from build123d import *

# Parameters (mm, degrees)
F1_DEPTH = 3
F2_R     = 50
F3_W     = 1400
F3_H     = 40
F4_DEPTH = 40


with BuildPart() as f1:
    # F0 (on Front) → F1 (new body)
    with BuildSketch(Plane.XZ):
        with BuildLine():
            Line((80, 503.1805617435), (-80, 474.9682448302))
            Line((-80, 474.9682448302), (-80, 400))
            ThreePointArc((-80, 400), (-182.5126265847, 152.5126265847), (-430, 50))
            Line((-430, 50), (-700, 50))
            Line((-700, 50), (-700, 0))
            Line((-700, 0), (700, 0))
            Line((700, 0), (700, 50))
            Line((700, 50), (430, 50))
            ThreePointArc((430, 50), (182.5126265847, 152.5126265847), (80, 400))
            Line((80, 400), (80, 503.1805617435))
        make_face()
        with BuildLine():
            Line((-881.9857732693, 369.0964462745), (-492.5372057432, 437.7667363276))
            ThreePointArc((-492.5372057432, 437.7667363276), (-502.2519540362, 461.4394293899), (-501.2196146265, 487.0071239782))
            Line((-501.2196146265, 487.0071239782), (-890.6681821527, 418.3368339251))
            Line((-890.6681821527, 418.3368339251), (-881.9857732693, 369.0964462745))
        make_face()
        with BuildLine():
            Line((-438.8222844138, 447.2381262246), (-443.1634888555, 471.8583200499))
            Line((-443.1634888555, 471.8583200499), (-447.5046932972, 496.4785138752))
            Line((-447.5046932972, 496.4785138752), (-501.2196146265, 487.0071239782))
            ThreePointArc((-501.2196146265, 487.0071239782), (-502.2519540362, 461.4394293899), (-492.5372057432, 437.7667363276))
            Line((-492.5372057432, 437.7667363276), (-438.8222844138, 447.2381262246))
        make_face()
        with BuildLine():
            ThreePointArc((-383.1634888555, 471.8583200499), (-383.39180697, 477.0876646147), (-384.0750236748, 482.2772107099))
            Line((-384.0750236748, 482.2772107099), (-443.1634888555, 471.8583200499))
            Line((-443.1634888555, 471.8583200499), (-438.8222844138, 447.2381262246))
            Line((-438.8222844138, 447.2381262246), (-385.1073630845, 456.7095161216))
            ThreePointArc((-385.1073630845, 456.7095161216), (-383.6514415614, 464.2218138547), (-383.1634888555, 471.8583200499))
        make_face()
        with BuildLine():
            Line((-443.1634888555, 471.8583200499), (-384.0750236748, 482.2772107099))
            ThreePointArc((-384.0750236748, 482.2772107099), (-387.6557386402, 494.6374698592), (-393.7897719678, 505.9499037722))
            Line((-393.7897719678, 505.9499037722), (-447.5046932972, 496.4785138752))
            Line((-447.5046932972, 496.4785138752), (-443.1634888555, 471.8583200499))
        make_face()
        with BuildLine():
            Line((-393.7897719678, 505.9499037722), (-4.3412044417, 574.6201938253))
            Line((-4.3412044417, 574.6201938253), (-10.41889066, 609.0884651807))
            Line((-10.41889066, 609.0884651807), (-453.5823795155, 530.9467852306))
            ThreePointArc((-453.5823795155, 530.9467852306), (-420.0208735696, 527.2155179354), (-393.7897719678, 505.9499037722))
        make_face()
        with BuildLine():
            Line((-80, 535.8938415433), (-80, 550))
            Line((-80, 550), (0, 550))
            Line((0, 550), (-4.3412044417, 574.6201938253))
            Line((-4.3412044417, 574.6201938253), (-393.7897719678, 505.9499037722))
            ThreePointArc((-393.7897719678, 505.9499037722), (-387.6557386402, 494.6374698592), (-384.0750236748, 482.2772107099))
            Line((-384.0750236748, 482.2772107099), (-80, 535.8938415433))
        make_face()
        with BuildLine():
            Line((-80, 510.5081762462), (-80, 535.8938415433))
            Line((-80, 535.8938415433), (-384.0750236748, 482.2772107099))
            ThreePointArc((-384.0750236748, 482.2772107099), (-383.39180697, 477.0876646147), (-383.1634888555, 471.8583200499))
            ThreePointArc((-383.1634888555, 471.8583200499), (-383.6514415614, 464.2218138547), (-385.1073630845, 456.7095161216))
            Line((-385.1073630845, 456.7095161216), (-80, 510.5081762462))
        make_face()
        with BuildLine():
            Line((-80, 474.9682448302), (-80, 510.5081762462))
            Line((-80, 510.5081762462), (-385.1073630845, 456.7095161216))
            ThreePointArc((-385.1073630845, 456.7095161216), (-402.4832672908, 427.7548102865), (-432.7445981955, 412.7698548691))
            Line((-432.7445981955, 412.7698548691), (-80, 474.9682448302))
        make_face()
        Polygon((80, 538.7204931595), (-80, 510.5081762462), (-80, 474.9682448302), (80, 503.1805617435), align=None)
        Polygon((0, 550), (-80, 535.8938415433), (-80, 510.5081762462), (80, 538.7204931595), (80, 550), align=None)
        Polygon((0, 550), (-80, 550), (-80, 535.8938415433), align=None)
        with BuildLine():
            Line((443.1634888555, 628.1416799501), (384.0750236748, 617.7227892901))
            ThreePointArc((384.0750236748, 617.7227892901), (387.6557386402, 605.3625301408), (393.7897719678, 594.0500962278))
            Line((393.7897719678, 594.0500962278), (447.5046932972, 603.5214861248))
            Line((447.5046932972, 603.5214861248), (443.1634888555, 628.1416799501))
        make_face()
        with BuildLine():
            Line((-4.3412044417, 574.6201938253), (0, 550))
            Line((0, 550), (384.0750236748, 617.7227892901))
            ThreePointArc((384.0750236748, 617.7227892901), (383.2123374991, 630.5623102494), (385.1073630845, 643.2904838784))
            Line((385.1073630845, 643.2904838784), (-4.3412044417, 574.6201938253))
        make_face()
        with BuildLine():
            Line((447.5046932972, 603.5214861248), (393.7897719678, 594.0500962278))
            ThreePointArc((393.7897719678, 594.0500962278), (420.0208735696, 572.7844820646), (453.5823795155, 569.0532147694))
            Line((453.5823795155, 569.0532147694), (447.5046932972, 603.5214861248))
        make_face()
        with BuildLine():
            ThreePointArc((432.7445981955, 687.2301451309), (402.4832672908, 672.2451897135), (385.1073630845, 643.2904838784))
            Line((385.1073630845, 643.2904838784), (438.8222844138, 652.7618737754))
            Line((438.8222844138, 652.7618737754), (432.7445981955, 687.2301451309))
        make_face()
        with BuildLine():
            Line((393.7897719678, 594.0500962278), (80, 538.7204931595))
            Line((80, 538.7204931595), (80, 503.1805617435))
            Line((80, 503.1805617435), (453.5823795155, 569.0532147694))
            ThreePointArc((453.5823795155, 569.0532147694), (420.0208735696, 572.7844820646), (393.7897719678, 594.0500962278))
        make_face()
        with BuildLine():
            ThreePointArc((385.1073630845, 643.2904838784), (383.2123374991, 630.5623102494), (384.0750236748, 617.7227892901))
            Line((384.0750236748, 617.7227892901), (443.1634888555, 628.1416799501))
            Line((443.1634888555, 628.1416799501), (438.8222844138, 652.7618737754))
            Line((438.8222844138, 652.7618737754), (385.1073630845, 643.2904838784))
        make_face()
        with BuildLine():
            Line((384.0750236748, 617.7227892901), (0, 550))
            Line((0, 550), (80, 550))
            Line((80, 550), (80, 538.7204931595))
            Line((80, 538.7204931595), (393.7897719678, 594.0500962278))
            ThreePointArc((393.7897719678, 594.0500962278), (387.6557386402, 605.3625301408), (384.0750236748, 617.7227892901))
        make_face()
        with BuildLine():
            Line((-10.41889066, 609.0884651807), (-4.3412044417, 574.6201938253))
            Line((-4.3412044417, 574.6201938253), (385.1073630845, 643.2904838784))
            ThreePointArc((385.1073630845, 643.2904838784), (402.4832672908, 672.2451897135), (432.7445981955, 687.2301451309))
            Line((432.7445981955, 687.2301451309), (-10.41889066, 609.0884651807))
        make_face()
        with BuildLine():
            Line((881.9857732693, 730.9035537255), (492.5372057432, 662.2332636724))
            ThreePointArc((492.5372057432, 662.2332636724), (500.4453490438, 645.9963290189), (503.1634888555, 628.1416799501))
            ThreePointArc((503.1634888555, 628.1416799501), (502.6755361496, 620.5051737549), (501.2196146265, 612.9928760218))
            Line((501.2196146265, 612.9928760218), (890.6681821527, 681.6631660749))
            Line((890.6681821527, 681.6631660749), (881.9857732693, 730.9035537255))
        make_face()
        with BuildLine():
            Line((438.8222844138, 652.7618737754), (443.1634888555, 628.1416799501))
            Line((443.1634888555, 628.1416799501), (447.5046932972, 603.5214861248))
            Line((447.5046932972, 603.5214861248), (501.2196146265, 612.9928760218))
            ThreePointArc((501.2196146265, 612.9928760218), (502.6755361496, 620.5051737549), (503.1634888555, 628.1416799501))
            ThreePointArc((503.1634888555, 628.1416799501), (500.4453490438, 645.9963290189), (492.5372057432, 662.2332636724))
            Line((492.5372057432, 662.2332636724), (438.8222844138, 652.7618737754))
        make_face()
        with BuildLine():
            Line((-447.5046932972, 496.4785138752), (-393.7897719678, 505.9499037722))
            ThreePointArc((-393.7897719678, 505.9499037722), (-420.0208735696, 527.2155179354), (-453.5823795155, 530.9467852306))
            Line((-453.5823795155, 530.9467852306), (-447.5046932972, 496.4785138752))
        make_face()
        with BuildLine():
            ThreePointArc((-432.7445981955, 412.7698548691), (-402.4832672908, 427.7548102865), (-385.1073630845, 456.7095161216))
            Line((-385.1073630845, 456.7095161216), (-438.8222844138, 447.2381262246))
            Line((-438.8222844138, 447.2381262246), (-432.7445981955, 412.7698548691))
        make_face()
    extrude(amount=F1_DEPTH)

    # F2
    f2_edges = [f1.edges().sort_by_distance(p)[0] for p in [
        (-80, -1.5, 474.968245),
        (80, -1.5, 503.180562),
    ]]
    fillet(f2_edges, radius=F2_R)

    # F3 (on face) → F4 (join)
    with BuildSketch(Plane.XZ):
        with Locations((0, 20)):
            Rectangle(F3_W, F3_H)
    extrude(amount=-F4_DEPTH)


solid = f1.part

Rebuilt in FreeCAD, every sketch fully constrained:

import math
import FreeCAD as App
import Part
import Sketcher
Q = App.Units.Quantity


def edges_at(feature, points):
    """Names of the edges that pass closest to the given points."""
    edges = feature.Shape.Edges
    near = lambda p: min(range(len(edges)), key=lambda i: edges[i].distToShape(Part.Vertex(*p))[0])
    return sorted({f"Edge{near(p) + 1}" for p in points})

doc = App.newDocument("Part")
body = doc.addObject("PartDesign::Body", "Body")

sketch1 = doc.addObject("Sketcher::SketchObject", "Sketch")
body.addObject(sketch1)
sketch1.AttachmentSupport = (doc.XZ_Plane, [""])
sketch1.MapMode = "FlatFace"
sketch1.addGeometry([
    Part.LineSegment(App.Vector(439, 653, 0), App.Vector(433, 687, 0)),
    Part.LineSegment(App.Vector(433, 687, 0), App.Vector(-454, 531, 0)),
    Part.LineSegment(App.Vector(-454, 531, 0), App.Vector(-448, 496, 0)),
    Part.LineSegment(App.Vector(-448, 496, 0), App.Vector(-891, 418, 0)),
    Part.LineSegment(App.Vector(-891, 418, 0), App.Vector(-882, 369, 0)),
    Part.LineSegment(App.Vector(-882, 369, 0), App.Vector(-439, 447, 0)),
    Part.LineSegment(App.Vector(-439, 447, 0), App.Vector(-433, 413, 0)),
    Part.LineSegment(App.Vector(-433, 413, 0), App.Vector(-80, 475, 0)),
    Part.LineSegment(App.Vector(-80, 475, 0), App.Vector(-80, 400, 0)),
    Part.ArcOfCircle(Part.Circle(App.Vector(-430, 400, 0), App.Vector(0, 0, 1), 350), math.radians(-90), math.radians(0)),
    Part.LineSegment(App.Vector(-430, 50, 0), App.Vector(-700, 50, 0)),
    Part.LineSegment(App.Vector(-700, 50, 0), App.Vector(-700, 0, 0)),
    Part.LineSegment(App.Vector(-700, 0, 0), App.Vector(700, 0, 0)),
    Part.LineSegment(App.Vector(700, 0, 0), App.Vector(700, 50, 0)),
    Part.LineSegment(App.Vector(700, 50, 0), App.Vector(430, 50, 0)),
    Part.ArcOfCircle(Part.Circle(App.Vector(430, 400, 0), App.Vector(0, 0, 1), 350), math.radians(180), math.radians(270)),
    Part.LineSegment(App.Vector(80, 400, 0), App.Vector(80, 503, 0)),
    Part.LineSegment(App.Vector(80, 503, 0), App.Vector(454, 569, 0)),
    Part.LineSegment(App.Vector(454, 569, 0), App.Vector(448, 604, 0)),
    Part.LineSegment(App.Vector(448, 604, 0), App.Vector(891, 682, 0)),
    Part.LineSegment(App.Vector(891, 682, 0), App.Vector(882, 731, 0)),
    Part.LineSegment(App.Vector(882, 731, 0), App.Vector(439, 653, 0)),
], False)
sketch1.addConstraint([
    Sketcher.Constraint("Coincident", 0, 2, 1, 1),
    Sketcher.Constraint("Coincident", 1, 2, 2, 1),
    Sketcher.Constraint("Coincident", 2, 2, 3, 1),
    Sketcher.Constraint("Coincident", 3, 2, 4, 1),
    Sketcher.Constraint("Coincident", 4, 2, 5, 1),
    Sketcher.Constraint("Coincident", 5, 2, 6, 1),
    Sketcher.Constraint("Coincident", 6, 2, 7, 1),
    Sketcher.Constraint("Coincident", 7, 2, 8, 1),
    Sketcher.Constraint("Tangent", 8, 2, 9, 2),
    Sketcher.Constraint("Tangent", 9, 1, 10, 1),
    Sketcher.Constraint("Coincident", 10, 2, 11, 1),
    Sketcher.Constraint("Coincident", 11, 2, 12, 1),
    Sketcher.Constraint("Coincident", 12, 2, 13, 1),
    Sketcher.Constraint("Coincident", 13, 2, 14, 1),
    Sketcher.Constraint("Tangent", 14, 2, 15, 2),
    Sketcher.Constraint("Tangent", 15, 1, 16, 1),
    Sketcher.Constraint("Coincident", 16, 2, 17, 1),
    Sketcher.Constraint("Coincident", 17, 2, 18, 1),
    Sketcher.Constraint("Coincident", 18, 2, 19, 1),
    Sketcher.Constraint("Coincident", 19, 2, 20, 1),
    Sketcher.Constraint("Coincident", 20, 2, 21, 1),
    Sketcher.Constraint("Coincident", 21, 2, 0, 1),
    Sketcher.Constraint("Vertical", 8),
    Sketcher.Constraint("Horizontal", 10),
    Sketcher.Constraint("Vertical", 11),
    Sketcher.Constraint("Horizontal", 12),
    Sketcher.Constraint("Vertical", 13),
    Sketcher.Constraint("Horizontal", 14),
    Sketcher.Constraint("Vertical", 16),
    Sketcher.Constraint("Equal", 9, 15),
    Sketcher.Constraint("Symmetric", 11, 2, 12, 2, -1, 1),
    Sketcher.Constraint("Symmetric", 9, 3, 15, 3, -2),
    Sketcher.Constraint("Perpendicular", 0, 1),
    Sketcher.Constraint("Perpendicular", 1, 2),
    Sketcher.Constraint("Perpendicular", 2, 3),
    Sketcher.Constraint("Perpendicular", 3, 4),
    Sketcher.Constraint("Perpendicular", 4, 5),
    Sketcher.Constraint("Perpendicular", 5, 6),
    Sketcher.Constraint("Perpendicular", 6, 7),
    Sketcher.Constraint("Parallel", 7, 17),
    Sketcher.Constraint("Perpendicular", 17, 18),
    Sketcher.Constraint("Perpendicular", 18, 19),
    Sketcher.Constraint("Perpendicular", 19, 20),
    Sketcher.Constraint("Perpendicular", 20, 21),
    Sketcher.Constraint("Equal", 0, 2),
    Sketcher.Constraint("Equal", 3, 5),
    Sketcher.Constraint("Equal", 2, 6),
    Sketcher.Constraint("Equal", 6, 18),
    Sketcher.Constraint("Equal", 5, 19),
    Sketcher.Constraint("Equal", 4, 20),
    Sketcher.Constraint("Equal", 19, 21),
    Sketcher.Constraint("Radius", 9, Q("350 mm")),
    Sketcher.Constraint("DistanceX", 10, 2, 10, 1, Q("270 mm")),
    Sketcher.Constraint("DistanceX", 12, 1, 12, 2, Q("1400 mm")),
    Sketcher.Constraint("DistanceY", 11, 2, 11, 1, Q("50 mm")),
    Sketcher.Constraint("Angle", 0, Q("100 deg")),
    Sketcher.Constraint("Distance", 0, Q("35 mm")),
    Sketcher.Constraint("Distance", 1, Q("900 mm")),
    Sketcher.Constraint("Distance", 3, Q("450 mm")),
    Sketcher.Constraint("Distance", 4, Q("50 mm")),
    Sketcher.Constraint("DistanceY", 16, 1, 16, 2, Q("103.180562 mm")),
    Sketcher.Constraint("DistanceX", -1, 1, 0, 2, Q("432.744598 mm")),
])
pad1 = doc.addObject("PartDesign::Pad", "Pad")
body.addObject(pad1)
pad1.Profile = sketch1
pad1.Length = 3
doc.recompute()

fillet = doc.addObject("PartDesign::Fillet", "Fillet")
body.addObject(fillet)
fillet.Base = (pad1, edges_at(pad1, [(-80, -1.5, 474.968), (80, -1.5, 503.181)]))
fillet.Radius = 50

sketch2 = doc.addObject("Sketcher::SketchObject", "Sketch001")
body.addObject(sketch2)
sketch2.AttachmentSupport = (doc.XZ_Plane, [""])
sketch2.MapMode = "FlatFace"
sketch2.addGeometry([
    Part.LineSegment(App.Vector(-700, 40, 0), App.Vector(-700, 0, 0)),
    Part.LineSegment(App.Vector(-700, 0, 0), App.Vector(700, 0, 0)),
    Part.LineSegment(App.Vector(700, 0, 0), App.Vector(700, 40, 0)),
    Part.LineSegment(App.Vector(700, 40, 0), App.Vector(-700, 40, 0)),
], False)
sketch2.addConstraint([
    Sketcher.Constraint("Coincident", 0, 2, 1, 1),
    Sketcher.Constraint("Coincident", 1, 2, 2, 1),
    Sketcher.Constraint("Coincident", 2, 2, 3, 1),
    Sketcher.Constraint("Coincident", 3, 2, 0, 1),
    Sketcher.Constraint("Vertical", 0),
    Sketcher.Constraint("Horizontal", 1),
    Sketcher.Constraint("Vertical", 2),
    Sketcher.Constraint("Horizontal", 3),
    Sketcher.Constraint("Symmetric", 0, 2, 1, 2, -1, 1),
    Sketcher.Constraint("DistanceX", 1, 1, 1, 2, Q("1400 mm")),
    Sketcher.Constraint("DistanceY", 0, 2, 0, 1, Q("40 mm")),
])
pad2 = doc.addObject("PartDesign::Pad", "Pad001")
body.addObject(pad2)
pad2.Profile = sketch2
pad2.Length = 40
pad2.Reversed = True

doc.recompute()
